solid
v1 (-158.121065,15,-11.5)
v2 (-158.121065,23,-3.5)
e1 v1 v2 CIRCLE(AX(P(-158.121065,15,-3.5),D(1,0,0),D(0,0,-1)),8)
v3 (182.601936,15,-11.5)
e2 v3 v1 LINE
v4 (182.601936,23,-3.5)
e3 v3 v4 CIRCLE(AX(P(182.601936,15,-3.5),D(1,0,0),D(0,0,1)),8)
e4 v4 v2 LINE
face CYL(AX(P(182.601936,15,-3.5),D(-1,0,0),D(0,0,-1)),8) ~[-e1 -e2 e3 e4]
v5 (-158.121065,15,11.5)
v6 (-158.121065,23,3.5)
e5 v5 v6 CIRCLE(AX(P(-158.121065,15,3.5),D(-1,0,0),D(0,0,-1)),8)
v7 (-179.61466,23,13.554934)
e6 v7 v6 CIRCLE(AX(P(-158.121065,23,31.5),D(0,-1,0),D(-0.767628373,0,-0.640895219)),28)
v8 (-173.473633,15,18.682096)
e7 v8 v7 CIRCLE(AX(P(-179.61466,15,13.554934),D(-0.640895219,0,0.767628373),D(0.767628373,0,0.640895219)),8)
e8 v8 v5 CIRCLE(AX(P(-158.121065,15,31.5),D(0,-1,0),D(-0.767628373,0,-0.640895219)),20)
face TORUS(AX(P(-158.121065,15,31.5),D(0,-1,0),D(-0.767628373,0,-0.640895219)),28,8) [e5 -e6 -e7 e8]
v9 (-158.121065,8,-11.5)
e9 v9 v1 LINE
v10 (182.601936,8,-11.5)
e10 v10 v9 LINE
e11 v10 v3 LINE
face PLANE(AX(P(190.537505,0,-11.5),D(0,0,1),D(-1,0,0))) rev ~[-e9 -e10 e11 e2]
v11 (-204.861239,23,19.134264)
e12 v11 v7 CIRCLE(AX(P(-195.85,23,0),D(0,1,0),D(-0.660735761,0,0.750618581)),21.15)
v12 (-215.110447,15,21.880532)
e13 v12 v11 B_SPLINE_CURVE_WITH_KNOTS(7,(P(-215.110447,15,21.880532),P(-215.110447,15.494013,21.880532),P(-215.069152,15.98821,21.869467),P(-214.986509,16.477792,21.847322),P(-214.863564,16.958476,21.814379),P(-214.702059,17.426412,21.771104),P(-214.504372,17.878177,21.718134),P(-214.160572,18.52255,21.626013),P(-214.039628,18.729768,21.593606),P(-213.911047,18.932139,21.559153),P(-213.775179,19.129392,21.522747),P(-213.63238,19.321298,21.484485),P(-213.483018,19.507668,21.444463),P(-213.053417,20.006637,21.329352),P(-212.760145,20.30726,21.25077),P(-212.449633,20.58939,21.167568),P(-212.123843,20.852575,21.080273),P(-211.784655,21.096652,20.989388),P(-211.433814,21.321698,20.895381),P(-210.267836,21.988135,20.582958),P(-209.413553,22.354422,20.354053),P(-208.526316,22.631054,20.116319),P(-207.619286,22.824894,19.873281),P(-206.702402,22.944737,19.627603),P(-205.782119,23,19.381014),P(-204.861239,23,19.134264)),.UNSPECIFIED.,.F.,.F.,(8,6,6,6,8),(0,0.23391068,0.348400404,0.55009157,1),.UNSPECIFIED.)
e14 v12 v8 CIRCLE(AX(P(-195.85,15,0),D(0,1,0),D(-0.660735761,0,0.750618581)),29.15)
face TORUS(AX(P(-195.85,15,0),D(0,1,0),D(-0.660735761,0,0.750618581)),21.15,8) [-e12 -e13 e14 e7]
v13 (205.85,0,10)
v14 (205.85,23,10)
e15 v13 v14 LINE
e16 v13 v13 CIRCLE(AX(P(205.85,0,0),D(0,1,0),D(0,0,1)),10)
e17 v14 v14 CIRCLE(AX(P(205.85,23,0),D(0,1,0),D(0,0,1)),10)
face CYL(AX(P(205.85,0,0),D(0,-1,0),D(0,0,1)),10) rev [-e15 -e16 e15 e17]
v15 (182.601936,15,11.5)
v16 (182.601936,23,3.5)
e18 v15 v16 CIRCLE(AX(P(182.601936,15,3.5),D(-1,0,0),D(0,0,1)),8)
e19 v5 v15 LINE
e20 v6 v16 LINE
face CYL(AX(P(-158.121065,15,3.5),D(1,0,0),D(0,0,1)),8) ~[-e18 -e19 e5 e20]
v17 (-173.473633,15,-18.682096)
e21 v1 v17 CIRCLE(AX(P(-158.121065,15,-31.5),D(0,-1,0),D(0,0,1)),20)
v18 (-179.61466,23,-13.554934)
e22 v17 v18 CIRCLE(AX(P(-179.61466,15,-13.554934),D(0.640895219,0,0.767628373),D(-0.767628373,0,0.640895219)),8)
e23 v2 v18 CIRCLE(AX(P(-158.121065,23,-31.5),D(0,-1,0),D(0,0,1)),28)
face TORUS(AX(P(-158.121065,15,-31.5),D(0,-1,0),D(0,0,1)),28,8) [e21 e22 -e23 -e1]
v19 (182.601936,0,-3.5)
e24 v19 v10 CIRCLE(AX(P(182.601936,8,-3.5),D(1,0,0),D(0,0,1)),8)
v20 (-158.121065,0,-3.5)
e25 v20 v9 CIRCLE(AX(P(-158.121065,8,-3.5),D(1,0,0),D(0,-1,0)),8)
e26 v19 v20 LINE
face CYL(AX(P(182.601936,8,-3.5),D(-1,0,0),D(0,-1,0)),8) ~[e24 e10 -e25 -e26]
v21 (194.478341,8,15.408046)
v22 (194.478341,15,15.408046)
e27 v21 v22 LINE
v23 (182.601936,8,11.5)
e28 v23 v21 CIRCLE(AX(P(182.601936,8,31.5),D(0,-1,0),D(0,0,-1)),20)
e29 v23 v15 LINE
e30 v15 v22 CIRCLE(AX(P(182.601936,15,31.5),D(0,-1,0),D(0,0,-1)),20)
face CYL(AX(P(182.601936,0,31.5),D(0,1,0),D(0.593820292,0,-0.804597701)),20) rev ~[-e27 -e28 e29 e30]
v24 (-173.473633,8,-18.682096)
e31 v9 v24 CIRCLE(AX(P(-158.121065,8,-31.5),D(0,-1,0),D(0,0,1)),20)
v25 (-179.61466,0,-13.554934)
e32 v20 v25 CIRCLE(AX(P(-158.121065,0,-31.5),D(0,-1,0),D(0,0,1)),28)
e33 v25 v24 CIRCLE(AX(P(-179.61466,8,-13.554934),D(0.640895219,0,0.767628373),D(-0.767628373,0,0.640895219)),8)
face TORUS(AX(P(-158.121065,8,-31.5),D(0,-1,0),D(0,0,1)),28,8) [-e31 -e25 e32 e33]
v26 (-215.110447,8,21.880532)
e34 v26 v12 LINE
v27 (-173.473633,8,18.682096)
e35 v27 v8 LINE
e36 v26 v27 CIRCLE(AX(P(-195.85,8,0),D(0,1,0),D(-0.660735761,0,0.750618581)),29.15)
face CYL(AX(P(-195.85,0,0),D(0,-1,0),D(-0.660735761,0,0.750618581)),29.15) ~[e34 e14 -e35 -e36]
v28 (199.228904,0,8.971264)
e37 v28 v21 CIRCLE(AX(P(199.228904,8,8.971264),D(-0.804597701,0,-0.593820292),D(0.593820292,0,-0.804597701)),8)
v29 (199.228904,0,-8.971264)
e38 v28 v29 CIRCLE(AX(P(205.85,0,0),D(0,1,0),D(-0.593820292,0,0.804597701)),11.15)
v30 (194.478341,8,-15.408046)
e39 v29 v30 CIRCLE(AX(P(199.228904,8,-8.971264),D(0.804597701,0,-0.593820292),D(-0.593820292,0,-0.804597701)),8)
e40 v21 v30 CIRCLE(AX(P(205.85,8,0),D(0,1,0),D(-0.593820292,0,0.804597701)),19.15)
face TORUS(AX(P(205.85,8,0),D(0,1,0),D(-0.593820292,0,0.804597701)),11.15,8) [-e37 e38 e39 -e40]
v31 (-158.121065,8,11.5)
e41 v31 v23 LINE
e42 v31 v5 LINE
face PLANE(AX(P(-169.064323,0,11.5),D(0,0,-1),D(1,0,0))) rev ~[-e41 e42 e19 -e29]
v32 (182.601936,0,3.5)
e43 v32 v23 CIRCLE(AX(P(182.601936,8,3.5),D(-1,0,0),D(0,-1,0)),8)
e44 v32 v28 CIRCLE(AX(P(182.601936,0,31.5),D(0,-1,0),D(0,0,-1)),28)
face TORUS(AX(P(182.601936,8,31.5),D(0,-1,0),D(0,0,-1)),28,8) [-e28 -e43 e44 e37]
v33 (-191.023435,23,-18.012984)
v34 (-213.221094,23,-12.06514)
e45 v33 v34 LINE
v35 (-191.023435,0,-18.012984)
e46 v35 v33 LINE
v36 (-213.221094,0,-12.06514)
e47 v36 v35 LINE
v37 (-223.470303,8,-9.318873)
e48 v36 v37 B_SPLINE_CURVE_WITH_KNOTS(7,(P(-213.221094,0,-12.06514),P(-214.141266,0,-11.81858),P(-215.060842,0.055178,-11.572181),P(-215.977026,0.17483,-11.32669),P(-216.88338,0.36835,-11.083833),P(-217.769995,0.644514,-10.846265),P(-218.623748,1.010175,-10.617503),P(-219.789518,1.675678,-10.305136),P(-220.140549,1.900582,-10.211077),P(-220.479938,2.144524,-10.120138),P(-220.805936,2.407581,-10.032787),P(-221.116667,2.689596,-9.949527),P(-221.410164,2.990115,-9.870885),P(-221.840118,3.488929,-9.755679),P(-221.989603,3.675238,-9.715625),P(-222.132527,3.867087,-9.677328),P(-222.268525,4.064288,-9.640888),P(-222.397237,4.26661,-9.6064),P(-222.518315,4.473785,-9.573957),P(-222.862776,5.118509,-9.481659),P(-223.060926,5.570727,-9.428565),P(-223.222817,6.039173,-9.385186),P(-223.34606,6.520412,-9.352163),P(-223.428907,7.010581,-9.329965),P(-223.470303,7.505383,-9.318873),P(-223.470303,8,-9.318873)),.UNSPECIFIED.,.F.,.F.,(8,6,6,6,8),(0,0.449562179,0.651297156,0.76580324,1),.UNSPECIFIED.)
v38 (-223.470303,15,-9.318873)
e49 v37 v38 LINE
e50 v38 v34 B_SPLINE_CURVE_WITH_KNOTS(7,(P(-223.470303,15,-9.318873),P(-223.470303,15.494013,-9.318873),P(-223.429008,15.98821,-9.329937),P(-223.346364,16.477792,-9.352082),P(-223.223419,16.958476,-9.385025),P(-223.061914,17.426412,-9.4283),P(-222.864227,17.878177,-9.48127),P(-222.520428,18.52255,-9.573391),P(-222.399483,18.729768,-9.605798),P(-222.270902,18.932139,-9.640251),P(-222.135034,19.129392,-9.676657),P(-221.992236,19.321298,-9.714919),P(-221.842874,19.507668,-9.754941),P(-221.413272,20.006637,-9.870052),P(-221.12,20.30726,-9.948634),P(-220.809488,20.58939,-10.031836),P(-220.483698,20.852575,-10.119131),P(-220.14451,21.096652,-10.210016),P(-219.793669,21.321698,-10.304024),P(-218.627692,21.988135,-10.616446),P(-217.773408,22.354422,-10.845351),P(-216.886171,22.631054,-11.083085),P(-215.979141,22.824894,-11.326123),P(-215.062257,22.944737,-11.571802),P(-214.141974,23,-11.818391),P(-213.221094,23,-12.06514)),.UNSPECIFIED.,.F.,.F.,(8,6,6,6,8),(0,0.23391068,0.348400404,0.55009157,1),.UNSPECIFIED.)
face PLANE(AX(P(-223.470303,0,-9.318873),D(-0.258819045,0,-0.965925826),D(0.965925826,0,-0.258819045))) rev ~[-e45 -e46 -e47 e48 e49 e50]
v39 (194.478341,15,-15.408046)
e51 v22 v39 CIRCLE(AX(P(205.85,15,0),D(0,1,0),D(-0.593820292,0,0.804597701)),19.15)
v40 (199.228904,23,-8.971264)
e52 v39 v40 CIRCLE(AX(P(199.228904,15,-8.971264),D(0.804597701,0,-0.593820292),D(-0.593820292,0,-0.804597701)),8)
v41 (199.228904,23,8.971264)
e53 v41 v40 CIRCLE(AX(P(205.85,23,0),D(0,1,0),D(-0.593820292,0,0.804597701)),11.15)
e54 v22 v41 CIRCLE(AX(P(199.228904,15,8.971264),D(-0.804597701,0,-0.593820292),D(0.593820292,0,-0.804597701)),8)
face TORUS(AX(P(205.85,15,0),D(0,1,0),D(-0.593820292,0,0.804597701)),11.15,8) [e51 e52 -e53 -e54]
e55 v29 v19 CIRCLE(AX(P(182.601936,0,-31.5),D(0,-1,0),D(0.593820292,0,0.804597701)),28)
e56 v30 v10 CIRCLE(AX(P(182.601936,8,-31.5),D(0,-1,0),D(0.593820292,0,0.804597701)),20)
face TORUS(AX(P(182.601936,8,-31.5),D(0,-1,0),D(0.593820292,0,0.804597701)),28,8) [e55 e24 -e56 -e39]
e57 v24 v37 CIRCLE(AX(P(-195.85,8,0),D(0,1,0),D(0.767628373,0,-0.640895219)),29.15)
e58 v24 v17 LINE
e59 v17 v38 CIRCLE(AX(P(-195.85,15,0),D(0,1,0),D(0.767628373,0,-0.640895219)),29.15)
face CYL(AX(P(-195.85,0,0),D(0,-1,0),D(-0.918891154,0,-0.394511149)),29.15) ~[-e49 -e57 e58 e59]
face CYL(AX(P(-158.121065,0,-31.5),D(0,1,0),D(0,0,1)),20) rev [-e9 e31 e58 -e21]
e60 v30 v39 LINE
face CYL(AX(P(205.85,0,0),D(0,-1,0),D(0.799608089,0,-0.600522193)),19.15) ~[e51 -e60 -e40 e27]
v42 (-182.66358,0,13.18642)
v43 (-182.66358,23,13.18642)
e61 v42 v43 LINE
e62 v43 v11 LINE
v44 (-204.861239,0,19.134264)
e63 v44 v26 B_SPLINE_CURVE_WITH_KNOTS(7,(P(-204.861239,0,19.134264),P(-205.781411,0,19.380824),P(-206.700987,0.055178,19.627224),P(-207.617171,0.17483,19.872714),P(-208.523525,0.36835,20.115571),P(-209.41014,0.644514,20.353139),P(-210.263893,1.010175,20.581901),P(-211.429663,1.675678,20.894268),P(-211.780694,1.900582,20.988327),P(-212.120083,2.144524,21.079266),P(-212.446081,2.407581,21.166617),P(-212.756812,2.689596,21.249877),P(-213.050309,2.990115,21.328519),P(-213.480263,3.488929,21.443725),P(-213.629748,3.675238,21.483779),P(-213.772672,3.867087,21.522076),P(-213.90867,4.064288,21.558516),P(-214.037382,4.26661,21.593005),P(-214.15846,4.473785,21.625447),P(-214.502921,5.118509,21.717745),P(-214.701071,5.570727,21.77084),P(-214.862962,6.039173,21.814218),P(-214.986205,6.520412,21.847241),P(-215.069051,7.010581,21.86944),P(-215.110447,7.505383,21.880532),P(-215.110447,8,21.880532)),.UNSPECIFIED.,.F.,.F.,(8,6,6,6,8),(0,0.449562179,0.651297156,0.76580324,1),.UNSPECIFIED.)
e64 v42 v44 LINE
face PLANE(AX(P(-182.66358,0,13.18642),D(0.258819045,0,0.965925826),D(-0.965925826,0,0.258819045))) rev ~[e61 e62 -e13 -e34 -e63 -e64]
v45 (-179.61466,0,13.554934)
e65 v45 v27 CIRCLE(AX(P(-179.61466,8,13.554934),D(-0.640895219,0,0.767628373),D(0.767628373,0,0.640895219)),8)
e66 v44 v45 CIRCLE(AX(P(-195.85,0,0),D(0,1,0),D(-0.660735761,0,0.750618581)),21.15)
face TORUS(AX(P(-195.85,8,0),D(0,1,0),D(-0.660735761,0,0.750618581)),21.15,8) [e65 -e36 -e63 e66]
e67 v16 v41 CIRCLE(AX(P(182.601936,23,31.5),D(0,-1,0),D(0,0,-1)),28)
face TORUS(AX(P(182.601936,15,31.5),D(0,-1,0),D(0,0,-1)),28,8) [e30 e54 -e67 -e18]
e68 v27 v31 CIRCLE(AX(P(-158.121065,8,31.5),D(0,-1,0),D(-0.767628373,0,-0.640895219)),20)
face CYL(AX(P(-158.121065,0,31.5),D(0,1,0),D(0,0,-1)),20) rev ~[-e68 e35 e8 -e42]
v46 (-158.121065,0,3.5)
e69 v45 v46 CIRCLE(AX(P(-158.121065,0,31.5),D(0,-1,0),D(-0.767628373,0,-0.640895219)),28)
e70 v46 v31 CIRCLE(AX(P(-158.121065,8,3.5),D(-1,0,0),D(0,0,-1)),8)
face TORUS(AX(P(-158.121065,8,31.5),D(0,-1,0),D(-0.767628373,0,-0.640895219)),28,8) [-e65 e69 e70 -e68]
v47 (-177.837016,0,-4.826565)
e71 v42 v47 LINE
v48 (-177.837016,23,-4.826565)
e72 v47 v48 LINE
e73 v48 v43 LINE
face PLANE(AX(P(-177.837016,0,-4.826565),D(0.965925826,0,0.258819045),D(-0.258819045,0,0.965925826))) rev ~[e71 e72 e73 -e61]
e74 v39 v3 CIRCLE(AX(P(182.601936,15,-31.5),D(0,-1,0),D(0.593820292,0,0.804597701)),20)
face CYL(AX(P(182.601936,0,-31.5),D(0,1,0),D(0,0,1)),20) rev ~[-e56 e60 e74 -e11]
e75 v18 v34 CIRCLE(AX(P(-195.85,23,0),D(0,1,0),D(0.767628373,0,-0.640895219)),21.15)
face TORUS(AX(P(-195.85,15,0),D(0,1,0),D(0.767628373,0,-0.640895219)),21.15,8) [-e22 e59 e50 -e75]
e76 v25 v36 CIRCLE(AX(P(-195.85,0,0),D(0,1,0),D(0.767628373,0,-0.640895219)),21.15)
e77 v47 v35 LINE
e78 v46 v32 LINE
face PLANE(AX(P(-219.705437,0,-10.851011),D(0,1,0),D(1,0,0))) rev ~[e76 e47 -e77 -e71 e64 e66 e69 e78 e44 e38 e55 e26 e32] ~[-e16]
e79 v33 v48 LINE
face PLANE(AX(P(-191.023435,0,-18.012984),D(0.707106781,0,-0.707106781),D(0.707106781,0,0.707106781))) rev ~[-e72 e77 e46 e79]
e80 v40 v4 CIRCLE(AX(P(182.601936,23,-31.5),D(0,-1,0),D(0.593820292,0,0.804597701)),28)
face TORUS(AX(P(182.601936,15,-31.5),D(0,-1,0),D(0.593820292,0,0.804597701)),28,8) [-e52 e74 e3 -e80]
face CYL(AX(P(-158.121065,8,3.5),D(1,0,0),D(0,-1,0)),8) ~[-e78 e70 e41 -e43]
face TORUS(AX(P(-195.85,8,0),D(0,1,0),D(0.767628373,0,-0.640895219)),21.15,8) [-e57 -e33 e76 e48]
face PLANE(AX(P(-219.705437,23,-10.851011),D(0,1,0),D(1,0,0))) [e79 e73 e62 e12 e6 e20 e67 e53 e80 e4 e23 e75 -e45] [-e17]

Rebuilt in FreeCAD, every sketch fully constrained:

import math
import FreeCAD as App
import Part
import Sketcher
from FreeCAD import Vector
Q = App.Units.Quantity


def edges_at(feature, points):
    """Names of the edges that pass closest to the given points."""
    edges = feature.Shape.Edges
    near = lambda p: min(range(len(edges)), key=lambda i: edges[i].distToShape(Part.Vertex(*p))[0])
    return sorted({f"Edge{near(p) + 1}" for p in points})

doc = App.newDocument("Part")
body = doc.addObject("PartDesign::Body", "Body")

# Sketch on XZ plane
sketch1 = body.newObject("Sketcher::SketchObject", "Sketch")
sketch1.AttachmentSupport = (doc.getObject("XZ_Plane"), [""])
sketch1.MapMode = "FlatFace"
sketch1.addGeometry([
    Part.LineSegment(Vector(191, -12, 0), Vector(-169, -12, 0)),  # 0
    Part.ArcOfCircle(Part.Circle(Vector(-196, 0, 0), Vector(0, 0, 1), 29), math.radians(-161), math.radians(-23)),  # 1
    Part.LineSegment(Vector(-223, -9, 0), Vector(-191, -18, 0)),  # 2
    Part.LineSegment(Vector(-191, -18, 0), Vector(-178, -5, 0)),  # 3
    Part.LineSegment(Vector(-178, -5, 0), Vector(-183, 13, 0)),  # 4
    Part.LineSegment(Vector(-183, 13, 0), Vector(-215, 22, 0)),  # 5
    Part.ArcOfCircle(Part.Circle(Vector(-196, 0, 0), Vector(0, 0, 1), 29), math.radians(23), math.radians(131)),  # 6
    Part.LineSegment(Vector(-169, 12, 0), Vector(191, 12, 0)),  # 7
    Part.ArcOfCircle(Part.Circle(Vector(206, 0, 0), Vector(0, 0, 1), 19), math.radians(-143), math.radians(143)),  # 8
    Part.Circle(Vector(206, 0, 0), Vector(0, 0, 1), 10),  # 9
], False)
sketch1.addConstraint([
    Sketcher.Constraint("Coincident", 0, 2, 1, 2),
    Sketcher.Constraint("Coincident", 1, 1, 2, 1),
    Sketcher.Constraint("Coincident", 2, 2, 3, 1),
    Sketcher.Constraint("Coincident", 3, 2, 4, 1),
    Sketcher.Constraint("Coincident", 4, 2, 5, 1),
    Sketcher.Constraint("Coincident", 5, 2, 6, 2),
    Sketcher.Constraint("Coincident", 6, 1, 7, 1),
    Sketcher.Constraint("Coincident", 7, 2, 8, 2),
    Sketcher.Constraint("Coincident", 8, 1, 0, 1),
    Sketcher.Constraint("Horizontal", 0),
    Sketcher.Constraint("Horizontal", 7),
    Sketcher.Constraint("Coincident", 6, 3, 1, 3),
    Sketcher.Constraint("Coincident", 9, 3, 8, 3),
    Sketcher.Constraint("Equal", 1, 6),
    Sketcher.Constraint("Symmetric", 0, 2, 6, 1, -1),
    Sketcher.Constraint("PointOnObject", 8, 3, -1),
    Sketcher.Constraint("Parallel", 2, 5),
    Sketcher.Constraint("Equal", 3, 4),
    Sketcher.Constraint("Equal", 2, 5),
    Sketcher.Constraint("Diameter", 9, 20.0),
    Sketcher.Constraint("Angle", 2, Q("-15 deg")),
    Sketcher.Constraint("Angle", 3, Q("45 deg")),
    Sketcher.Constraint("Angle", 4, Q("105 deg")),
    Sketcher.Constraint("Radius", 1, 29.15),
    Sketcher.Constraint("Radius", 8, 19.15),
    Sketcher.Constraint("DistanceY", 0, 2, 6, 1, 23.0),
    Sketcher.Constraint("DistanceX", 1, 3, 8, 3, 401.7),
    Sketcher.Constraint("DistanceX", 1, 3, -1, 1, 195.85),
    Sketcher.Constraint("Distance", 2, 33.591469),
    Sketcher.Constraint("DistanceX", 4, 2, -1, 1, 182.66358),
])
pad1 = body.newObject("PartDesign::Pad", "Pad")
pad1.Profile = sketch1
pad1.Length = 23
pad1.Reversed = True
doc.recompute()

fillet = body.newObject("PartDesign::Fillet", "Fillet")
fillet.Base = (pad1, edges_at(pad1, [
    (-169.064, 11.5, 11.5),
    (-169.064, 11.5, -11.5),
    (190.538, 11.5, -11.5),
    (190.538, 11.5, 11.5),
]))
fillet.Radius = 20
doc.recompute()

fillet2 = body.newObject("PartDesign::Fillet", "Fillet001")
fillet2.Base = (fillet, edges_at(fillet, [
    (-193.617, 0, 29.064),
    (225, 0, 0),
    (225, 23, 0),
    (12.24, 0, 11.5),
    (12.24, 23, 11.5),
    (12.24, 0, -11.5),
    (12.24, 23, -11.5),
    (-201.216, 0, -28.652),
    (-201.216, 23, -28.652),
    (188.853, 0, 12.502),
    (-193.617, 23, 29.064),
    (188.853, 23, 12.502),
    (188.853, 0, -12.502),
    (188.853, 23, -12.502),
    (-166.596, 0, -13.384),
    (-166.596, 23, -13.384),
    (-166.596, 0, 13.384),
    (-166.596, 23, 13.384),
]))
fillet2.Radius = 8

doc.recompute()
